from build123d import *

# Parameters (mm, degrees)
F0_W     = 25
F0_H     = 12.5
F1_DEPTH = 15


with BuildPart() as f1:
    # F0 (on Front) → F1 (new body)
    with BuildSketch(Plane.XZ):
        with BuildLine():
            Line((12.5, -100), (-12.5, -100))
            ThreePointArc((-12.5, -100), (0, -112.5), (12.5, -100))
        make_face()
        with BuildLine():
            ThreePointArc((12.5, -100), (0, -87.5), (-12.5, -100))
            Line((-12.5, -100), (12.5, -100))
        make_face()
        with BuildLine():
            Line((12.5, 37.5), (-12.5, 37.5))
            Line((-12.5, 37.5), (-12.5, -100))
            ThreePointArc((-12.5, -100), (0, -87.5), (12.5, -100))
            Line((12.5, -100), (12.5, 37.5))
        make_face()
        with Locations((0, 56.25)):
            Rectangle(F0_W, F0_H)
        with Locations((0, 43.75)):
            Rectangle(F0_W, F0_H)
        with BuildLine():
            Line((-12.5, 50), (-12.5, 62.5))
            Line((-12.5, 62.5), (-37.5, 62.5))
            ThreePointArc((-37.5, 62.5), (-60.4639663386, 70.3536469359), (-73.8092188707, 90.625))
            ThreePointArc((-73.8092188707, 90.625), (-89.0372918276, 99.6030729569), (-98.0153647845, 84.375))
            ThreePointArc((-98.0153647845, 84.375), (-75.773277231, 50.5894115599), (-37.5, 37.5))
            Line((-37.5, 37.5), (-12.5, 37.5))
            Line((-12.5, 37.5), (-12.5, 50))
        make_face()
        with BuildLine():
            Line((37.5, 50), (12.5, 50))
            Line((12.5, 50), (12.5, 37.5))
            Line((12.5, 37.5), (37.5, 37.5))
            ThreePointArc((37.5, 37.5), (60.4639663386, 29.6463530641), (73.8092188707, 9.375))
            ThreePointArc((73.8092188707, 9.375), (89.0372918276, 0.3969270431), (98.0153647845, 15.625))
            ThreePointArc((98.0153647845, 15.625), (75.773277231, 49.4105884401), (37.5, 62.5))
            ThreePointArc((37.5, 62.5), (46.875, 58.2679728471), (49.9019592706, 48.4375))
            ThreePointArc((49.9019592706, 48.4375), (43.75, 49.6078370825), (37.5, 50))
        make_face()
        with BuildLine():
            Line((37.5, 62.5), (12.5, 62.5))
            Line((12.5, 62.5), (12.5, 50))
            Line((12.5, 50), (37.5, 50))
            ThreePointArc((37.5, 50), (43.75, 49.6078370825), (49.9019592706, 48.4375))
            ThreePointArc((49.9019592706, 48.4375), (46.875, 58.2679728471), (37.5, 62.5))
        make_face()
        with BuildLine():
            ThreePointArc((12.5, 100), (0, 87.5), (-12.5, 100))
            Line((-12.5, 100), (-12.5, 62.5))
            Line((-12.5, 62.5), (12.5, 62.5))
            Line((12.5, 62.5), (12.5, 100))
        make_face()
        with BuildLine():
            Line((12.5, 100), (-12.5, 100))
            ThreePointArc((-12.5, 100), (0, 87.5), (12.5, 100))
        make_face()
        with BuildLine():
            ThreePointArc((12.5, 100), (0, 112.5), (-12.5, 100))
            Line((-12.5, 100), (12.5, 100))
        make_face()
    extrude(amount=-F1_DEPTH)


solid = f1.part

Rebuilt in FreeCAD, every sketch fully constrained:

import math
import FreeCAD as App
import Part
import Sketcher

doc = App.newDocument("Part")
body = doc.addObject("PartDesign::Body", "Body")

# Sketch on XZ plane
sketch1 = body.newObject("Sketcher::SketchObject", "Sketch")
sketch1.AttachmentSupport = (doc.getObject("XZ_Plane"), [""])
sketch1.MapMode = "FlatFace"
sketch1.addGeometry([
    Part.ArcOfCircle(Part.Circle(App.Vector(0, -100, 0), App.Vector(0, 0, 1), 12), math.radians(180), math.radians(360)),  # 0
    Part.LineSegment(App.Vector(12, -100, 0), App.Vector(12, 38, 0)),  # 1
    Part.LineSegment(App.Vector(12, 38, 0), App.Vector(38, 38, 0)),  # 2
    Part.ArcOfCircle(Part.Circle(App.Vector(38, 0, 0), App.Vector(0, 0, 1), 38), math.radians(14), math.radians(90)),  # 3
    Part.ArcOfCircle(Part.Circle(App.Vector(86, 12, 0), App.Vector(0, 0, 1), 12), math.radians(-166), math.radians(14)),  # 4
    Part.ArcOfCircle(Part.Circle(App.Vector(38, 0, 0), App.Vector(0, 0, 1), 62), math.radians(14), math.radians(90)),  # 5
    Part.LineSegment(App.Vector(38, 62, 0), App.Vector(12, 62, 0)),  # 6
    Part.LineSegment(App.Vector(12, 62, 0), App.Vector(12, 100, 0)),  # 7
    Part.ArcOfCircle(Part.Circle(App.Vector(0, 100, 0), App.Vector(0, 0, 1), 12), math.radians(0), math.radians(180)),  # 8
    Part.LineSegment(App.Vector(-12, 100, 0), App.Vector(-12, 62, 0)),  # 9
    Part.LineSegment(App.Vector(-12, 62, 0), App.Vector(-38, 62, 0)),  # 10
    Part.ArcOfCircle(Part.Circle(App.Vector(-38, 100, 0), App.Vector(0, 0, 1), 38), math.radians(-166), math.radians(-90)),  # 11
    Part.ArcOfCircle(Part.Circle(App.Vector(-86, 88, 0), App.Vector(0, 0, 1), 12), math.radians(14), math.radians(194)),  # 12
    Part.ArcOfCircle(Part.Circle(App.Vector(-38, 100, 0), App.Vector(0, 0, 1), 62), math.radians(-166), math.radians(-90)),  # 13
    Part.LineSegment(App.Vector(-38, 38, 0), App.Vector(-12, 38, 0)),  # 14
    Part.LineSegment(App.Vector(-12, 38, 0), App.Vector(-12, -100, 0)),  # 15
], False)
sketch1.addConstraint([
    Sketcher.Constraint("Tangent", 0, 2, 1, 1),
    Sketcher.Constraint("Coincident", 1, 2, 2, 1),
    Sketcher.Constraint("Tangent", 2, 2, 3, 2),
    Sketcher.Constraint("Tangent", 3, 1, 4, 1),
    Sketcher.Constraint("Tangent", 4, 2, 5, 1),
    Sketcher.Constraint("Tangent", 5, 2, 6, 1),
    Sketcher.Constraint("Coincident", 6, 2, 7, 1),
    Sketcher.Constraint("Tangent", 7, 2, 8, 1),
    Sketcher.Constraint("Tangent", 8, 2, 9, 1),
    Sketcher.Constraint("Coincident", 9, 2, 10, 1),
    Sketcher.Constraint("Tangent", 10, 2, 11, 2),
    Sketcher.Constraint("Tangent", 11, 1, 12, 1),
    Sketcher.Constraint("Tangent", 12, 2, 13, 1),
    Sketcher.Constraint("Tangent", 13, 2, 14, 1),
    Sketcher.Constraint("Coincident", 14, 2, 15, 1),
    Sketcher.Constraint("Tangent", 15, 2, 0, 1),
    Sketcher.Constraint("Vertical", 1),
    Sketcher.Constraint("Horizontal", 2),
    Sketcher.Constraint("Horizontal", 6),
    Sketcher.Constraint("Vertical", 7),
    Sketcher.Constraint("Vertical", 9),
    Sketcher.Constraint("Horizontal", 10),
    Sketcher.Constraint("Horizontal", 14),
    Sketcher.Constraint("Vertical", 15),
    Sketcher.Constraint("Coincident", 5, 3, 3, 3),
    Sketcher.Constraint("Coincident", 13, 3, 11, 3),
    Sketcher.Constraint("Equal", 0, 4),
    Sketcher.Constraint("Equal", 4, 8),
    Sketcher.Constraint("Equal", 3, 11),
    Sketcher.Constraint("Equal", 8, 12),
    Sketcher.Constraint("Symmetric", 0, 3, 8, 3, -1, 1),
    Sketcher.Constraint("Symmetric", 6, 2, 9, 2, -2),
    Sketcher.Constraint("PointOnObject", 3, 3, -1),
    Sketcher.Constraint("Horizontal", 8, 3, 11, 3),
    Sketcher.Constraint("Equal", 6, 10),
    Sketcher.Constraint("Radius", 0, 12.5),
    Sketcher.Constraint("Radius", 3, 37.5),
    Sketcher.Constraint("DistanceX", 2, 1, 2, 2, 25.0),
    Sketcher.Constraint("DistanceY", 4, 3, 12, 3, 75.0),
    Sketcher.Constraint("DistanceY", 4, 3, 1, 2, 25.0),
])
pad1 = body.newObject("PartDesign::Pad", "Pad")
pad1.Profile = sketch1
pad1.Length = 15
pad1.Reversed = True

doc.recompute()
